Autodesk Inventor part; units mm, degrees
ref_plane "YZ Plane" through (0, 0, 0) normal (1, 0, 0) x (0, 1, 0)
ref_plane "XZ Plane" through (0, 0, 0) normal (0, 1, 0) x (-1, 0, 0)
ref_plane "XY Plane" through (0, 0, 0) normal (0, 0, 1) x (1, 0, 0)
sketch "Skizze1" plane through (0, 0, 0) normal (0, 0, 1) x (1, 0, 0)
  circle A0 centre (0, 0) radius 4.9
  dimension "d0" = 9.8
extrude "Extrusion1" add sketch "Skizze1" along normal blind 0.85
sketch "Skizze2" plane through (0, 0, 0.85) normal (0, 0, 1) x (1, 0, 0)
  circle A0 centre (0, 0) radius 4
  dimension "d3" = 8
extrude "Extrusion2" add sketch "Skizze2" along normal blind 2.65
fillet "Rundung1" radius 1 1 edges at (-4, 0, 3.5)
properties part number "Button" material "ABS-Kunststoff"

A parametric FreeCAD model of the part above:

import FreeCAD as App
import Part
import Sketcher


def edges_at(feature, points):
    """Names of the edges that pass closest to the given points."""
    edges = feature.Shape.Edges
    near = lambda p: min(range(len(edges)), key=lambda i: edges[i].distToShape(Part.Vertex(*p))[0])
    return sorted({f"Edge{near(p) + 1}" for p in points})

doc = App.newDocument("Part")
body = doc.addObject("PartDesign::Body", "Body")

# Sketch on XY plane
sketch1 = body.newObject("Sketcher::SketchObject", "Sketch")
sketch1.AttachmentSupport = (doc.getObject("XY_Plane"), [""])
sketch1.MapMode = "FlatFace"
sketch1.addGeometry(Part.Circle(App.Vector(0, 0, 0), App.Vector(0, 0, 1), 4.9), False)
sketch1.addConstraint([
    Sketcher.Constraint("Coincident", 0, 3, -1, 1),
    Sketcher.Constraint("Diameter", 0, 9.8),
])
pad1 = body.newObject("PartDesign::Pad", "Pad")
pad1.Profile = sketch1
pad1.Length = 0.85

# Sketch on XY plane
sketch2 = body.newObject("Sketcher::SketchObject", "Sketch001")
sketch2.AttachmentSupport = (doc.getObject("XY_Plane"), [""])
sketch2.MapMode = "FlatFace"
sketch2.AttachmentOffset = App.Placement(App.Vector(0, 0, 0.85), App.Rotation())
sketch2.addGeometry(Part.Circle(App.Vector(0, 0, 0), App.Vector(0, 0, 1), 4), False)
sketch2.addConstraint([
    Sketcher.Constraint("Coincident", 0, 3, -1, 1),
    Sketcher.Constraint("Diameter", 0, 8.0),
])
pad2 = body.newObject("PartDesign::Pad", "Pad001")
pad2.Profile = sketch2
pad2.Length = 2.65
doc.recompute()

fillet = body.newObject("PartDesign::Fillet", "Fillet")
fillet.Base = (pad2, edges_at(pad2, [(-4, 0, 3.5)]))
fillet.Radius = 1

doc.recompute()
